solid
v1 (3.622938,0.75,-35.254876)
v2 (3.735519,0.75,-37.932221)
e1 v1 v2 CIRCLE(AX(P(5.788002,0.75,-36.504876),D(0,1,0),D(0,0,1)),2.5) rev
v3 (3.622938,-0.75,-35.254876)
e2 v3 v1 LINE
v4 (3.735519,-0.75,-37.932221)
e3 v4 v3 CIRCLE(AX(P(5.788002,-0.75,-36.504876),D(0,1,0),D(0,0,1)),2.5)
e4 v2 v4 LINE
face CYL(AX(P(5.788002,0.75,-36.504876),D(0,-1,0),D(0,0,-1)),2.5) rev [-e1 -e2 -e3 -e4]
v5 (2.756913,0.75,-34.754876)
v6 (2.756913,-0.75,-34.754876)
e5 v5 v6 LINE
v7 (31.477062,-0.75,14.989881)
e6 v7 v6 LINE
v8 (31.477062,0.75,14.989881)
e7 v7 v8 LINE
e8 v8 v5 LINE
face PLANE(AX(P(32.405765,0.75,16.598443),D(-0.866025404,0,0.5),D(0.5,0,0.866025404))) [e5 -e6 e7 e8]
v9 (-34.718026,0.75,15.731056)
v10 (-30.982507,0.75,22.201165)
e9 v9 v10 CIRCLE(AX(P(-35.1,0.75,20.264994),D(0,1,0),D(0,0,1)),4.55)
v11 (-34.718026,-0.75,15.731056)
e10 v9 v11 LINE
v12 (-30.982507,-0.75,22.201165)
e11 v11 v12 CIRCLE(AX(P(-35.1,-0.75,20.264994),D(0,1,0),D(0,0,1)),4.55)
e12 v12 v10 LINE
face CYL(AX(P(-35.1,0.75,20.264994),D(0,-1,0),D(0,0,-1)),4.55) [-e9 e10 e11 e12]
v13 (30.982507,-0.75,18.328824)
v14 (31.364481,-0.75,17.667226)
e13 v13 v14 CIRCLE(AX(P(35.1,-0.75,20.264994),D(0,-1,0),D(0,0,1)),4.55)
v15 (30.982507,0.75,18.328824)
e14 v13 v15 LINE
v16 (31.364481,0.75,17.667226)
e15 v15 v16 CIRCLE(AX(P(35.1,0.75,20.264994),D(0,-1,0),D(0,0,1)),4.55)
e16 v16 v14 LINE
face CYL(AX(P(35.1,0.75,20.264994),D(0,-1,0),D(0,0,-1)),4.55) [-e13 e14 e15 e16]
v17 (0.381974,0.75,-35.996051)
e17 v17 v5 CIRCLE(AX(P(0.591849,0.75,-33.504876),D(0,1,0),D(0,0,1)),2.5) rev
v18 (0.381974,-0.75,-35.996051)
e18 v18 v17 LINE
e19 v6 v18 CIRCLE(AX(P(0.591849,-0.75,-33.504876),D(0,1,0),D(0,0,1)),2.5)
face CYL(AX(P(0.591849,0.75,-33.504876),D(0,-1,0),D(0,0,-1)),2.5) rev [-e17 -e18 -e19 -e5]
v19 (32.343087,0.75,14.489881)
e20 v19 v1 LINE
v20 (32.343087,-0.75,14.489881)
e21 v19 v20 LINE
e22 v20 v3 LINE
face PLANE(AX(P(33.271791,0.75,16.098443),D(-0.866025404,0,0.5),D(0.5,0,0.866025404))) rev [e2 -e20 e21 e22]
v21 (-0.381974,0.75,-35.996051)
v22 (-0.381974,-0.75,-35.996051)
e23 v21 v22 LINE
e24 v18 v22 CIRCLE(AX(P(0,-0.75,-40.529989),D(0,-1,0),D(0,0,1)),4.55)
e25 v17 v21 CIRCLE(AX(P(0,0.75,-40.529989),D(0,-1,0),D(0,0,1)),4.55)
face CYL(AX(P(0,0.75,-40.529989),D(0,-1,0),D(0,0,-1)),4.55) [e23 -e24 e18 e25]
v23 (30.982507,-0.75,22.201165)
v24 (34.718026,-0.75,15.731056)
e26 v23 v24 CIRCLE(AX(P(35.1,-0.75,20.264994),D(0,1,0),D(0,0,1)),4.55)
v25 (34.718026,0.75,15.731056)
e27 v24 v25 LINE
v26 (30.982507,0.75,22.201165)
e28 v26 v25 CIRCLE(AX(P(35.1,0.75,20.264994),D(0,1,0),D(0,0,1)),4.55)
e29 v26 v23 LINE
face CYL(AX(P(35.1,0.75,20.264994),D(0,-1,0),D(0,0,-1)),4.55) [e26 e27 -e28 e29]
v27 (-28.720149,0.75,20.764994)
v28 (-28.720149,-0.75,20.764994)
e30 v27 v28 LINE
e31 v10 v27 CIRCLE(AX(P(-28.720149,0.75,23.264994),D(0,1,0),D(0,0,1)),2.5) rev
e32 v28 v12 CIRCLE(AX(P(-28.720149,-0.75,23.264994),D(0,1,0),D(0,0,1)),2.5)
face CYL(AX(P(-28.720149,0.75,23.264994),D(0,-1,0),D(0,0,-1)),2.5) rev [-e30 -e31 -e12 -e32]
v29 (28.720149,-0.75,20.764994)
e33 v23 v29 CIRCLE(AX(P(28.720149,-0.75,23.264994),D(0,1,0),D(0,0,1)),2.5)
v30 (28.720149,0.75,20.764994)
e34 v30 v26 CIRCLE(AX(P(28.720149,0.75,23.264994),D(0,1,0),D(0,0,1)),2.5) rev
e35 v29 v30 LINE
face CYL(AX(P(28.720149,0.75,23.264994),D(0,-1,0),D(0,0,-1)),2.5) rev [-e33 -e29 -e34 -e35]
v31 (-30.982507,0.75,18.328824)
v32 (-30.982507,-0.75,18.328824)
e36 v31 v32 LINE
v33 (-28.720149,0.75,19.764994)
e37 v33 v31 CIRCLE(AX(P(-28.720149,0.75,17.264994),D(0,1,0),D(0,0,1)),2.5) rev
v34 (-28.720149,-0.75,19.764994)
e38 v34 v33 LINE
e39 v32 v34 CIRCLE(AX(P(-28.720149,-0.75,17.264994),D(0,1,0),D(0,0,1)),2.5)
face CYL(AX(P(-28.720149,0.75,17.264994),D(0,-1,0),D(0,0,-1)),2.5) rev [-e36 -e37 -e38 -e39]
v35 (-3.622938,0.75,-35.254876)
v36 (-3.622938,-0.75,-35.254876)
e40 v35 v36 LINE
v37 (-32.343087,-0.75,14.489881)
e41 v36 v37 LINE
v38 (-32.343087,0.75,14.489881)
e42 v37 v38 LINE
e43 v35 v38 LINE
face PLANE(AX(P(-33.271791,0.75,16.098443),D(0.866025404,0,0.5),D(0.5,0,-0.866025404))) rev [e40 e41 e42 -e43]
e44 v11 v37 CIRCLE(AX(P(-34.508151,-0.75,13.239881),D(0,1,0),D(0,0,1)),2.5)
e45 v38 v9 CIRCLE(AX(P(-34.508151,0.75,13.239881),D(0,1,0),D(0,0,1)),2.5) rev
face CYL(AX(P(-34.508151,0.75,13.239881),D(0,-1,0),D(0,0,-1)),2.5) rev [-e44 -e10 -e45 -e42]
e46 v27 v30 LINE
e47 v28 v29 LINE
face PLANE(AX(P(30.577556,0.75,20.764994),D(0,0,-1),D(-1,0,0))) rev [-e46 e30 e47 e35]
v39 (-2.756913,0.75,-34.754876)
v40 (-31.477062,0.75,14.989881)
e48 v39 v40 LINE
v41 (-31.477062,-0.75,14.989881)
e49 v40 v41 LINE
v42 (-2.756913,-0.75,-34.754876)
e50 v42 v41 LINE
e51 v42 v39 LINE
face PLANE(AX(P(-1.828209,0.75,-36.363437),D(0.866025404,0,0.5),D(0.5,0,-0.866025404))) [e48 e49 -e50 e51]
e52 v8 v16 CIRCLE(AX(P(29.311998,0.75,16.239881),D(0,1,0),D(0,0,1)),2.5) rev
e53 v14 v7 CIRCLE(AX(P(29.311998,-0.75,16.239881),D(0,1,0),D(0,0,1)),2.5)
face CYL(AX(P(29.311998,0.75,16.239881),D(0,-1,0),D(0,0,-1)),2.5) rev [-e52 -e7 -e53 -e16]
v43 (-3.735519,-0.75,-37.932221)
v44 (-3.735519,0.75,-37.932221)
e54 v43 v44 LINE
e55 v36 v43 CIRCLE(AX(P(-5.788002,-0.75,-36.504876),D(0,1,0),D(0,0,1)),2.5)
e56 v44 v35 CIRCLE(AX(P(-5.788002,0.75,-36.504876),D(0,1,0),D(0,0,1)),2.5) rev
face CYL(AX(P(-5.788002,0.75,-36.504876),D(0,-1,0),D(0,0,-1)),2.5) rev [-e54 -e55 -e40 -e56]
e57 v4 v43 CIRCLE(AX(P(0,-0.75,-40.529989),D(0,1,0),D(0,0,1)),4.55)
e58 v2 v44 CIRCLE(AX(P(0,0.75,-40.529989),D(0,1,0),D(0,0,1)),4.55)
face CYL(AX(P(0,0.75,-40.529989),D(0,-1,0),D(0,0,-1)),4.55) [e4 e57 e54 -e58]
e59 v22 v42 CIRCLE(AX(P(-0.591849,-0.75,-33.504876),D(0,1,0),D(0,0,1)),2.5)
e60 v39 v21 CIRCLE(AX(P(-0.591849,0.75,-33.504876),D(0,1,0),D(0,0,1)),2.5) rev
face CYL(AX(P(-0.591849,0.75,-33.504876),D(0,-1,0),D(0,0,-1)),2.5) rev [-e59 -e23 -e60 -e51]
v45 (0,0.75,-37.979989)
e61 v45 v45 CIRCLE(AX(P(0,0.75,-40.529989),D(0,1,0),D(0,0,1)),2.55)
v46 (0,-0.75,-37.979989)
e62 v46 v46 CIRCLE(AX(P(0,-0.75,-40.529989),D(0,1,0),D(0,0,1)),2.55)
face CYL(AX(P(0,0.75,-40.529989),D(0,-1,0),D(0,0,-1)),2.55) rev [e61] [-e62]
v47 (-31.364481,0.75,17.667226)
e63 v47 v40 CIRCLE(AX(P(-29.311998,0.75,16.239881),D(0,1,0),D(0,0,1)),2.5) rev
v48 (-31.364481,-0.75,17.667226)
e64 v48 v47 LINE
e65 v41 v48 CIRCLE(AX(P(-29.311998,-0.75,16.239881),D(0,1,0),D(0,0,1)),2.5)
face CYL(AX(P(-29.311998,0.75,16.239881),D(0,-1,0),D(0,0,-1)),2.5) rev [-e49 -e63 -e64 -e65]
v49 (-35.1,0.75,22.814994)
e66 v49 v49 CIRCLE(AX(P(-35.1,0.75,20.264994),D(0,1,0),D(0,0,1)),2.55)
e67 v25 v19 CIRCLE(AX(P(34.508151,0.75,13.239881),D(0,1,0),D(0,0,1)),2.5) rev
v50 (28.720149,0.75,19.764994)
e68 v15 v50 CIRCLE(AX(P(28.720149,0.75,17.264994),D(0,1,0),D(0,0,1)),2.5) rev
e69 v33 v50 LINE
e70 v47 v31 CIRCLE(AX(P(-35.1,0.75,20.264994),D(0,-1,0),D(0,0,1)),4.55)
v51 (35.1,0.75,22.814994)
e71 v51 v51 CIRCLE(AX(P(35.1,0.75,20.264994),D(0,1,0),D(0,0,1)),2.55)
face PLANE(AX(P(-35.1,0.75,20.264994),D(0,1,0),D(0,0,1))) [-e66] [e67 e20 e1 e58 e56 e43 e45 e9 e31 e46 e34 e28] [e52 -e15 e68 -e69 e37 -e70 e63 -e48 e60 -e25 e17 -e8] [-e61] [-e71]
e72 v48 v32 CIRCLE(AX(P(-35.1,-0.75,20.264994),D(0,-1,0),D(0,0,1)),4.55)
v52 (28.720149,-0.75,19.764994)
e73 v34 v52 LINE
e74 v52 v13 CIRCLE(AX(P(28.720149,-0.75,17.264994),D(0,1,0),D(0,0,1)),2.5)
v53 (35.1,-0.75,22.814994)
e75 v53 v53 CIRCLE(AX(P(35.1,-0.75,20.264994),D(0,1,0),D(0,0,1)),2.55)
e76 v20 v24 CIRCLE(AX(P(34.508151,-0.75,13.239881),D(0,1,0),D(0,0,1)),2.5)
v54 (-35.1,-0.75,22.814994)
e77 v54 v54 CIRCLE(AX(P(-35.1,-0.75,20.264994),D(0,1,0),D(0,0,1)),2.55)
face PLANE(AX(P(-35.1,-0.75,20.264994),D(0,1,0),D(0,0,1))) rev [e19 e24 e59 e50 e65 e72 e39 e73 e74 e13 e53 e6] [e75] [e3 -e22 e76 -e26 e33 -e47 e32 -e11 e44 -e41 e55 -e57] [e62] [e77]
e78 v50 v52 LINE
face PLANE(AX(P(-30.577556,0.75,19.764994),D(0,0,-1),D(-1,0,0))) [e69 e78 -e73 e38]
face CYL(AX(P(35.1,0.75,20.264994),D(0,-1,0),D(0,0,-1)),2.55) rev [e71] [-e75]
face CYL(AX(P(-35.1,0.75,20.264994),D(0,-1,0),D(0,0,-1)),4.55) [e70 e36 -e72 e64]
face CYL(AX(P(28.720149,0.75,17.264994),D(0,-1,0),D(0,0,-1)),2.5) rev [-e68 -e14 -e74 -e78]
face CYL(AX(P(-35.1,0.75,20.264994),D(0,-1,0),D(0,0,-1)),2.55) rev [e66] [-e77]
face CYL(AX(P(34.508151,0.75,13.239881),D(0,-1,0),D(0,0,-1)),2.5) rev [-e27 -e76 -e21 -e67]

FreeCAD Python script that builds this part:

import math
import FreeCAD as App
import Part
import Sketcher
from FreeCAD import Vector
Q = App.Units.Quantity


def edges_at(feature, points):
    """Names of the edges that pass closest to the given points."""
    edges = feature.Shape.Edges
    near = lambda p: min(range(len(edges)), key=lambda i: edges[i].distToShape(Part.Vertex(*p))[0])
    return sorted({f"Edge{near(p) + 1}" for p in points})

doc = App.newDocument("Part")
body = doc.addObject("PartDesign::Body", "Body")

sketch1 = body.newObject("Sketcher::SketchObject", "Sketch")
sketch1.AttachmentSupport = (doc.getObject("XZ_Plane"), [""])
sketch1.MapMode = "FlatFace"
sketch1.addGeometry([
    Part.LineSegment(Vector(-2.7, -36.9, 0), Vector(-33.3, 16.1, 0)),
    Part.ArcOfCircle(Part.Circle(Vector(-35.1, 20.3, 0), Vector(0, 0, 1), 4.5), math.radians(6), math.radians(294)),
    Part.LineSegment(Vector(-30.6, 20.8, 0), Vector(30.6, 20.8, 0)),
    Part.ArcOfCircle(Part.Circle(Vector(35.1, 20.3, 0), Vector(0, 0, 1), 4.5), math.radians(-114), math.radians(174)),
    Part.LineSegment(Vector(33.3, 16.1, 0), Vector(2.7, -36.9, 0)),
    Part.ArcOfCircle(Part.Circle(Vector(0, -40.5, 0), Vector(0, 0, 1), 4.5), math.radians(126), math.radians(414)),
    Part.Circle(Vector(35.1, 20.3, 0), Vector(0, 0, 1), 2.5),
    Part.Circle(Vector(-35.1, 20.3, 0), Vector(0, 0, 1), 2.5),
    Part.ArcOfCircle(Part.Circle(Vector(-35.1, 20.3, 0), Vector(0, 0, 1), 4.6), math.radians(-54), math.radians(-6)),
    Part.LineSegment(Vector(-32.4, 16.6, 0), Vector(-1.8, -36.4, 0)),
    Part.ArcOfCircle(Part.Circle(Vector(0, -40.5, 0), Vector(0, 0, 1), 4.6), math.radians(66), math.radians(114)),
    Part.LineSegment(Vector(1.8, -36.4, 0), Vector(32.4, 16.6, 0)),
    Part.ArcOfCircle(Part.Circle(Vector(35.1, 20.3, 0), Vector(0, 0, 1), 4.6), math.radians(-174), math.radians(-126)),
    Part.LineSegment(Vector(30.6, 19.8, 0), Vector(-30.6, 19.8, 0)),
    Part.Circle(Vector(0, -40.5, 0), Vector(0, 0, 1), 2.5),
], False)
sketch1.addConstraint([
    Sketcher.Constraint("Coincident", 0, 2, 1, 2),
    Sketcher.Constraint("Coincident", 1, 1, 2, 1),
    Sketcher.Constraint("Coincident", 2, 2, 3, 2),
    Sketcher.Constraint("Coincident", 3, 1, 4, 1),
    Sketcher.Constraint("Coincident", 4, 2, 5, 2),
    Sketcher.Constraint("Coincident", 5, 1, 0, 1),
    Sketcher.Constraint("Coincident", 8, 1, 9, 1),
    Sketcher.Constraint("Coincident", 9, 2, 10, 2),
    Sketcher.Constraint("Coincident", 10, 1, 11, 1),
    Sketcher.Constraint("Coincident", 11, 2, 12, 2),
    Sketcher.Constraint("Coincident", 12, 1, 13, 1),
    Sketcher.Constraint("Coincident", 13, 2, 8, 2),
    Sketcher.Constraint("Horizontal", 2),
    Sketcher.Constraint("Horizontal", 13),
    Sketcher.Constraint("Coincident", 6, 3, 3, 3),
    Sketcher.Constraint("Coincident", 7, 3, 1, 3),
    Sketcher.Constraint("Coincident", 8, 3, 1, 3),
    Sketcher.Constraint("Coincident", 10, 3, 5, 3),
    Sketcher.Constraint("Coincident", 12, 3, 3, 3),
    Sketcher.Constraint("Coincident", 14, 3, 5, 3),
    Sketcher.Constraint("Equal", 1, 3),
    Sketcher.Constraint("Equal", 3, 5),
    Sketcher.Constraint("Equal", 6, 7),
    Sketcher.Constraint("Equal", 5, 8),
    Sketcher.Constraint("Equal", 8, 10),
    Sketcher.Constraint("Equal", 10, 12),
    Sketcher.Constraint("Equal", 7, 14),
    Sketcher.Constraint("Symmetric", 1, 3, 3, 3, -2),
    Sketcher.Constraint("Symmetric", 4, 2, 5, 1, -2),
    Sketcher.Constraint("Parallel", 0, 9),
    Sketcher.Constraint("Parallel", 4, 11),
    Sketcher.Constraint("Horizontal", 0, 2, 3, 1),
    Sketcher.Constraint("Horizontal", 9, 2, 10, 1),
    Sketcher.Constraint("Vertical", 2, 2, 12, 1),
    Sketcher.Constraint("Equal", 4, 9),
    Sketcher.Constraint("Diameter", 6, 5.1),
    Sketcher.Constraint("Angle", 0, Q("120 deg")),
    Sketcher.Constraint("Radius", 1, 4.55),
    Sketcher.Constraint("DistanceY", 12, 1, 2, 2, 1.0),
    Sketcher.Constraint("DistanceX", 1, 3, -1, 1, 35.1),
    Sketcher.Constraint("DistanceY", 0, 2, 8, 1, 0.5),
    Sketcher.Constraint("Distance", 0, 61.155112),
    Sketcher.Constraint("DistanceY", 5, 3, -1, 1, 40.529989),
])
pad1 = body.newObject("PartDesign::Pad", "Pad")
pad1.Profile = sketch1
pad1.Length = 1.5
pad1.Midplane = True
doc.recompute()

fillet = body.newObject("PartDesign::Fillet", "Fillet")
fillet.Base = (pad1, edges_at(pad1, [
    (-33.272, 0, 16.098),
    (-2.694, 0, -36.863),
    (2.694, 0, -36.863),
    (33.272, 0, 16.098),
    (30.578, 0, 20.765),
    (-30.578, 0, 20.765),
]))
fillet.Radius = 2.5
doc.recompute()

fillet2 = body.newObject("PartDesign::Fillet", "Fillet001")
fillet2.Base = (fillet, edges_at(fillet, [
    (1.828, 0, -36.363),
    (-1.828, 0, -36.363),
    (-32.406, 0, 16.598),
    (-30.578, 0, 19.765),
    (30.578, 0, 19.765),
    (32.406, 0, 16.598),
]))
fillet2.Radius = 2.5

doc.recompute()
